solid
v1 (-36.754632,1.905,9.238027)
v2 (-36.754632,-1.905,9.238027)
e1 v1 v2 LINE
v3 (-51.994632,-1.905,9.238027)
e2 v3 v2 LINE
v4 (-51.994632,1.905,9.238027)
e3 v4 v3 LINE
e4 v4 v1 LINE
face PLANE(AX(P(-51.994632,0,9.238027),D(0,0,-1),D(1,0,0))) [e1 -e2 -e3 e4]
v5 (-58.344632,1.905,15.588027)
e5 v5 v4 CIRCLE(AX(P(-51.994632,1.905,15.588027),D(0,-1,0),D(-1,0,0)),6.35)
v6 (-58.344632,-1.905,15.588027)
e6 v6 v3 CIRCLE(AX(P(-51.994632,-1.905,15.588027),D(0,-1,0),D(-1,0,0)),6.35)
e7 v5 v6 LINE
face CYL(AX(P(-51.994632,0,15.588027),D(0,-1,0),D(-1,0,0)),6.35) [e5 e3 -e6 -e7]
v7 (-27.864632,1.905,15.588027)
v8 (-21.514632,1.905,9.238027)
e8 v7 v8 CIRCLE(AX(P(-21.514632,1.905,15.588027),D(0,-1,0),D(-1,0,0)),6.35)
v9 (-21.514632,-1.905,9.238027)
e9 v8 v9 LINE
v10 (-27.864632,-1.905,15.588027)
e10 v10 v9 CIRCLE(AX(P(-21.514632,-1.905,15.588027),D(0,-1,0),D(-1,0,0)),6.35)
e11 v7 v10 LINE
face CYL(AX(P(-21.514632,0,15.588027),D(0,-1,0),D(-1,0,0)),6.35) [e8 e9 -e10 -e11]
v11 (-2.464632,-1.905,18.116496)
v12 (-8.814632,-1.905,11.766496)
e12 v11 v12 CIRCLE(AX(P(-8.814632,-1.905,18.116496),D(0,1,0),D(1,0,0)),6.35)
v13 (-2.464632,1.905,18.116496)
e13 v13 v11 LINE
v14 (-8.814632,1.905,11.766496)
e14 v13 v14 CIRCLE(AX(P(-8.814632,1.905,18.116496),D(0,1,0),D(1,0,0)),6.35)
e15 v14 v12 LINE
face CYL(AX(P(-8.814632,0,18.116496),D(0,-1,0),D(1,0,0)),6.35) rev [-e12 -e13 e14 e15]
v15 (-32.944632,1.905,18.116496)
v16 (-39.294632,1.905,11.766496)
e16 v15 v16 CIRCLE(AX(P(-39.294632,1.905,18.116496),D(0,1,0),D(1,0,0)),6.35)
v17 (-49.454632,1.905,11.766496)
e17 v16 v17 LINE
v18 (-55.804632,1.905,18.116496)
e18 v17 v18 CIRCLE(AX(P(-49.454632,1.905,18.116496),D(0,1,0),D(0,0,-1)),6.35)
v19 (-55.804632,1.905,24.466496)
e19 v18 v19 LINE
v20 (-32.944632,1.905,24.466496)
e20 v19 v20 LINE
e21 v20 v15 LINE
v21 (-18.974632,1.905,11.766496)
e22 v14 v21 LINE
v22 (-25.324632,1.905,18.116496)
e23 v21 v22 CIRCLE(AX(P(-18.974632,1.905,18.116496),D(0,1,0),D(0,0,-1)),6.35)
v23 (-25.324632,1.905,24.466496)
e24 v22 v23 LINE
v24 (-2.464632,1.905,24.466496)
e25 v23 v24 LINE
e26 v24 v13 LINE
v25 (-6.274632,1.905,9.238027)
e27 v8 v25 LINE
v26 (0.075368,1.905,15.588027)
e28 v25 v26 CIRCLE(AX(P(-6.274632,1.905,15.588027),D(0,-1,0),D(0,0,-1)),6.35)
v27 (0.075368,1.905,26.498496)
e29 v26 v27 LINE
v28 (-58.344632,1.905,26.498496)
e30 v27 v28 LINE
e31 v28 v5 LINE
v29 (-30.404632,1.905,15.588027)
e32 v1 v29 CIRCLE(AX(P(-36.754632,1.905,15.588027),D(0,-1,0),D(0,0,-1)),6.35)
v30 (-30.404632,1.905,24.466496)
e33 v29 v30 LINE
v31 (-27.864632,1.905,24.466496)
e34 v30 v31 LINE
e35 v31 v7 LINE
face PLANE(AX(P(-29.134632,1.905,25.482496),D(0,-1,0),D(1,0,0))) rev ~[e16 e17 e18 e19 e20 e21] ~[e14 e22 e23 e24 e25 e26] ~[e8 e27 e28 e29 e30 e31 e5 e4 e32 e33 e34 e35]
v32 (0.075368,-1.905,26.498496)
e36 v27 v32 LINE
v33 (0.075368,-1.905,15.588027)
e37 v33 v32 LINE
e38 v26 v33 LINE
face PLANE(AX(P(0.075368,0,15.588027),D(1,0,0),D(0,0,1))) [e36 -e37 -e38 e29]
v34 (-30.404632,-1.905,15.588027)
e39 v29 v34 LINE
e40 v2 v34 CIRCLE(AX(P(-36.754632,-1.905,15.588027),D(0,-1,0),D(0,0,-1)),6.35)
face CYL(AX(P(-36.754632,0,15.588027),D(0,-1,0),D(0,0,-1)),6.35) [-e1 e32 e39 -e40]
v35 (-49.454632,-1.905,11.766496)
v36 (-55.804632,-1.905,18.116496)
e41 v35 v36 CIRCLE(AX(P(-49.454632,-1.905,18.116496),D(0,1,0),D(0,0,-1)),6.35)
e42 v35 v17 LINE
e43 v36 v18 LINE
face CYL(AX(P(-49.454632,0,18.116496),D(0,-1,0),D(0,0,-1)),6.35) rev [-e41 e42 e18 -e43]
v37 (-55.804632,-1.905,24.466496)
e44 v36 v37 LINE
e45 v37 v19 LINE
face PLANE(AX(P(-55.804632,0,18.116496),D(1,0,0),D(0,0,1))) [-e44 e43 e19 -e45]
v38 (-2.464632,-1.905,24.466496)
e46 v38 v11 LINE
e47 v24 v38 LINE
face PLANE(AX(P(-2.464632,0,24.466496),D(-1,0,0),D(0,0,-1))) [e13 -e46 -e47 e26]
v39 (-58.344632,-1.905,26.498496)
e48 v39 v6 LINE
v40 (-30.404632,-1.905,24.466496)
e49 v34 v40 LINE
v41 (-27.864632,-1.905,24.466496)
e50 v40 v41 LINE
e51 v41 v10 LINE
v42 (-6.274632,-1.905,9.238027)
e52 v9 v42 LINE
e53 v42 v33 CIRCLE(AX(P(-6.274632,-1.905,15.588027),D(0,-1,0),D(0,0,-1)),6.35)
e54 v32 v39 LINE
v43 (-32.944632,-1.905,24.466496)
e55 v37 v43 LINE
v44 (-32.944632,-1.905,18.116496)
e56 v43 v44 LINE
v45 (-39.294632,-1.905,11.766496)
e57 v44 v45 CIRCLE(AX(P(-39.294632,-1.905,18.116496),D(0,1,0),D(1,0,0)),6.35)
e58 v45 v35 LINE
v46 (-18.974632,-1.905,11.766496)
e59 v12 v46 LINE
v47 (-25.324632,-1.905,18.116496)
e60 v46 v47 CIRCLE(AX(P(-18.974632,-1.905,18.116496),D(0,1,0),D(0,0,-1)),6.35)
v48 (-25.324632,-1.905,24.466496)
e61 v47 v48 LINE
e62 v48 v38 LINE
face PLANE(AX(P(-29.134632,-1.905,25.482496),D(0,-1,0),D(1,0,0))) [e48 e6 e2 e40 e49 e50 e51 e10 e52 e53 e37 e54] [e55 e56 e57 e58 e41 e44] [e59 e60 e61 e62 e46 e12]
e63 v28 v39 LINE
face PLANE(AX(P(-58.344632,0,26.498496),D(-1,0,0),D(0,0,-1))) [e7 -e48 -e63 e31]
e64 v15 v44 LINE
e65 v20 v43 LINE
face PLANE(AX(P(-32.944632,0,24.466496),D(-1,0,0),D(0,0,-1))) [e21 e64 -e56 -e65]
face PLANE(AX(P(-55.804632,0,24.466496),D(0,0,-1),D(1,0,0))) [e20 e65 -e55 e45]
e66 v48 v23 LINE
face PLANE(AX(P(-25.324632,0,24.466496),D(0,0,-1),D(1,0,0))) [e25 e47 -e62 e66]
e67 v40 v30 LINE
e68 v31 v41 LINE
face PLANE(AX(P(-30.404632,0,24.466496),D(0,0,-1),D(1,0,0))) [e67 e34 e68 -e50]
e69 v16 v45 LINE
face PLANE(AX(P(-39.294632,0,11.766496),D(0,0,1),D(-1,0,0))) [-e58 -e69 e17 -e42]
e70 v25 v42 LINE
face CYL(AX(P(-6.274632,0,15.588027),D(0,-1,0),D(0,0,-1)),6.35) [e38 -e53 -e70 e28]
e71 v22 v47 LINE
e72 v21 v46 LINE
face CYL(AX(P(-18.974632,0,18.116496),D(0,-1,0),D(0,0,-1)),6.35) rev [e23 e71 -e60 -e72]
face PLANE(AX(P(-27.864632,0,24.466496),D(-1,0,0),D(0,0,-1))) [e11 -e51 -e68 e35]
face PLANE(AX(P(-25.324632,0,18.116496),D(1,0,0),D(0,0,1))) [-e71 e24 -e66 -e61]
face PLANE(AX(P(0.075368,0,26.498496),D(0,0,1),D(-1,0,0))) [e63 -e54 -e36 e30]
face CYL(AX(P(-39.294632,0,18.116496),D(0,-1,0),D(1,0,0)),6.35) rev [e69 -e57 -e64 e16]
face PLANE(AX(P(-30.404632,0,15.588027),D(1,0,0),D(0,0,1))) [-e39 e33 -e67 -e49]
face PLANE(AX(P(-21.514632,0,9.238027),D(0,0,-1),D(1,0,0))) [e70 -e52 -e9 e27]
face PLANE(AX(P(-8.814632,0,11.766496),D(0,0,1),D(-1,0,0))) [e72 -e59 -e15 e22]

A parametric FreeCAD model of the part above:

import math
import FreeCAD as App
import Part
import Sketcher
from FreeCAD import Vector
Q = App.Units.Quantity

doc = App.newDocument("Part")
body = doc.addObject("PartDesign::Body", "Body")

sketch1 = body.newObject("Sketcher::SketchObject", "Sketch")
sketch1.AttachmentSupport = (doc.getObject("XZ_Plane"), [""])
sketch1.MapMode = "FlatFace"
sketch1.addGeometry(Part.LineSegment(Vector(-30.404632, 24.466496, 0), Vector(-27.864632, 24.466496, 0)), False)
sketch1.addGeometry(Part.LineSegment(Vector(-27.864632, 24.466496, 0), Vector(-27.864632, 15.588027, 0)), False)
sketch1.addGeometry(Part.ArcOfCircle(Part.Circle(Vector(-21.514632, 15.588027, 0), Vector(0, 0, 1), 6.35), math.radians(180), math.radians(270)), False)
sketch1.addGeometry(Part.LineSegment(Vector(-21.514632, 9.238027, 0), Vector(-6.274632, 9.238027, 0)), False)
sketch1.addGeometry(Part.ArcOfCircle(Part.Circle(Vector(-6.274632, 15.588027, 0), Vector(0, 0, 1), 6.35), math.radians(-90), math.radians(0)), False)
sketch1.addGeometry(Part.LineSegment(Vector(0.075368, 15.588027, 0), Vector(0.075368, 26.498496, 0)), False)
sketch1.addGeometry(Part.LineSegment(Vector(0.075368, 26.498496, 0), Vector(-58.344632, 26.498496, 0)), False)
sketch1.addGeometry(Part.LineSegment(Vector(-58.344632, 26.498496, 0), Vector(-58.344632, 15.588027, 0)), False)
sketch1.addGeometry(Part.ArcOfCircle(Part.Circle(Vector(-51.994632, 15.588027, 0), Vector(0, 0, 1), 6.35), math.radians(180), math.radians(270)), False)
sketch1.addGeometry(Part.LineSegment(Vector(-51.994632, 9.238027, 0), Vector(-36.754632, 9.238027, 0)), False)
sketch1.addGeometry(Part.ArcOfCircle(Part.Circle(Vector(-36.754632, 15.588027, 0), Vector(0, 0, 1), 6.35), math.radians(-90), math.radians(0)), False)
sketch1.addGeometry(Part.LineSegment(Vector(-30.404632, 15.588027, 0), Vector(-30.404632, 24.466496, 0)), False)
sketch1.addGeometry(Part.LineSegment(Vector(-55.804632, 24.466496, 0), Vector(-32.944632, 24.466496, 0)), False)
sketch1.addGeometry(Part.LineSegment(Vector(-32.944632, 24.466496, 0), Vector(-32.944632, 18.116496, 0)), False)
sketch1.addGeometry(Part.ArcOfCircle(Part.Circle(Vector(-39.294632, 18.116496, 0), Vector(0, 0, 1), 6.35), math.radians(-90), math.radians(0)), False)
sketch1.addGeometry(Part.LineSegment(Vector(-39.294632, 11.766496, 0), Vector(-49.454632, 11.766496, 0)), False)
sketch1.addGeometry(Part.ArcOfCircle(Part.Circle(Vector(-49.454632, 18.116496, 0), Vector(0, 0, 1), 6.35), math.radians(180), math.radians(270)), False)
sketch1.addGeometry(Part.LineSegment(Vector(-55.804632, 18.116496, 0), Vector(-55.804632, 24.466496, 0)), False)
sketch1.addGeometry(Part.LineSegment(Vector(-25.324632, 24.466496, 0), Vector(-2.464632, 24.466496, 0)), False)
sketch1.addGeometry(Part.LineSegment(Vector(-2.464632, 24.466496, 0), Vector(-2.464632, 18.116496, 0)), False)
sketch1.addGeometry(Part.ArcOfCircle(Part.Circle(Vector(-8.814632, 18.116496, 0), Vector(0, 0, 1), 6.35), math.radians(-90), math.radians(0)), False)
sketch1.addGeometry(Part.LineSegment(Vector(-8.814632, 11.766496, 0), Vector(-18.974632, 11.766496, 0)), False)
sketch1.addGeometry(Part.ArcOfCircle(Part.Circle(Vector(-18.974632, 18.116496, 0), Vector(0, 0, 1), 6.35), math.radians(180), math.radians(270)), False)
sketch1.addGeometry(Part.LineSegment(Vector(-25.324632, 18.116496, 0), Vector(-25.324632, 24.466496, 0)), False)
sketch1.addConstraint(Sketcher.Constraint("Coincident", 0, 2, 1, 1))
sketch1.addConstraint(Sketcher.Constraint("Tangent", 1, 2, 2, 1))
sketch1.addConstraint(Sketcher.Constraint("Tangent", 2, 2, 3, 1))
sketch1.addConstraint(Sketcher.Constraint("Tangent", 3, 2, 4, 1))
sketch1.addConstraint(Sketcher.Constraint("Tangent", 4, 2, 5, 1))
sketch1.addConstraint(Sketcher.Constraint("Coincident", 5, 2, 6, 1))
sketch1.addConstraint(Sketcher.Constraint("Coincident", 6, 2, 7, 1))
sketch1.addConstraint(Sketcher.Constraint("Tangent", 7, 2, 8, 1))
sketch1.addConstraint(Sketcher.Constraint("Tangent", 8, 2, 9, 1))
sketch1.addConstraint(Sketcher.Constraint("Tangent", 9, 2, 10, 1))
sketch1.addConstraint(Sketcher.Constraint("Tangent", 10, 2, 11, 1))
sketch1.addConstraint(Sketcher.Constraint("Coincident", 11, 2, 0, 1))
sketch1.addConstraint(Sketcher.Constraint("Coincident", 12, 2, 13, 1))
sketch1.addConstraint(Sketcher.Constraint("Tangent", 13, 2, 14, 2))
sketch1.addConstraint(Sketcher.Constraint("Tangent", 14, 1, 15, 1))
sketch1.addConstraint(Sketcher.Constraint("Tangent", 15, 2, 16, 2))
sketch1.addConstraint(Sketcher.Constraint("Tangent", 16, 1, 17, 1))
sketch1.addConstraint(Sketcher.Constraint("Coincident", 17, 2, 12, 1))
sketch1.addConstraint(Sketcher.Constraint("Coincident", 18, 2, 19, 1))
sketch1.addConstraint(Sketcher.Constraint("Tangent", 19, 2, 20, 2))
sketch1.addConstraint(Sketcher.Constraint("Tangent", 20, 1, 21, 1))
sketch1.addConstraint(Sketcher.Constraint("Tangent", 21, 2, 22, 2))
sketch1.addConstraint(Sketcher.Constraint("Tangent", 22, 1, 23, 1))
sketch1.addConstraint(Sketcher.Constraint("Coincident", 23, 2, 18, 1))
sketch1.addConstraint(Sketcher.Constraint("Horizontal", 0))
sketch1.addConstraint(Sketcher.Constraint("Vertical", 1))
sketch1.addConstraint(Sketcher.Constraint("Horizontal", 3))
sketch1.addConstraint(Sketcher.Constraint("Vertical", 5))
sketch1.addConstraint(Sketcher.Constraint("Horizontal", 6))
sketch1.addConstraint(Sketcher.Constraint("Vertical", 7))
sketch1.addConstraint(Sketcher.Constraint("Horizontal", 9))
sketch1.addConstraint(Sketcher.Constraint("Vertical", 11))
sketch1.addConstraint(Sketcher.Constraint("Horizontal", 12))
sketch1.addConstraint(Sketcher.Constraint("Vertical", 13))
sketch1.addConstraint(Sketcher.Constraint("Horizontal", 15))
sketch1.addConstraint(Sketcher.Constraint("Vertical", 17))
sketch1.addConstraint(Sketcher.Constraint("Horizontal", 18))
sketch1.addConstraint(Sketcher.Constraint("Vertical", 19))
sketch1.addConstraint(Sketcher.Constraint("Horizontal", 21))
sketch1.addConstraint(Sketcher.Constraint("Vertical", 23))
sketch1.addConstraint(Sketcher.Constraint("Equal", 2, 4))
sketch1.addConstraint(Sketcher.Constraint("Equal", 4, 8))
sketch1.addConstraint(Sketcher.Constraint("Equal", 8, 10))
sketch1.addConstraint(Sketcher.Constraint("Equal", 10, 14))
sketch1.addConstraint(Sketcher.Constraint("Equal", 14, 16))
sketch1.addConstraint(Sketcher.Constraint("Equal", 16, 20))
sketch1.addConstraint(Sketcher.Constraint("Equal", 20, 22))
sketch1.addConstraint(Sketcher.Constraint("Horizontal", 4, 3, 8, 3))
sketch1.addConstraint(Sketcher.Constraint("Horizontal", 16, 3, 20, 3))
sketch1.addConstraint(Sketcher.Constraint("Horizontal", 11, 2, 12, 2))
sketch1.addConstraint(Sketcher.Constraint("Horizontal", 17, 2, 18, 2))
sketch1.addConstraint(Sketcher.Constraint("Equal", 3, 9))
sketch1.addConstraint(Sketcher.Constraint("Equal", 12, 18))
sketch1.addConstraint(Sketcher.Constraint("Radius", 2, Q("0.25 in")))
sketch1.addConstraint(Sketcher.Constraint("DistanceX", 0, 1, 0, 2, Q("0.1 in")))
sketch1.addConstraint(Sketcher.Constraint("DistanceX", 3, 1, 3, 2, Q("0.6 in")))
sketch1.addConstraint(Sketcher.Constraint("DistanceX", 12, 1, 12, 2, Q("0.9 in")))
sketch1.addConstraint(Sketcher.Constraint("DistanceY", 13, 2, 13, 1, Q("0.25 in")))
sketch1.addConstraint(Sketcher.Constraint("DistanceX", 14, 3, 10, 3, Q("0.1 in")))
sketch1.addConstraint(Sketcher.Constraint("DistanceX", 20, 3, 4, 3, Q("0.1 in")))
sketch1.addConstraint(Sketcher.Constraint("DistanceY", 20, 3, 5, 2, Q("0.33 in")))
sketch1.addConstraint(Sketcher.Constraint("DistanceY", 1, 2, 1, 1, 8.878469))
sketch1.addConstraint(Sketcher.Constraint("DistanceX", 2, 3, -1, 1, 21.514632))
sketch1.addConstraint(Sketcher.Constraint("DistanceY", -1, 1, 2, 3, 15.588027))
pad1 = body.newObject("PartDesign::Pad", "Pad")
pad1.Profile = sketch1
pad1.Length = Q("0.15 in")
pad1.Midplane = True

doc.recompute()
